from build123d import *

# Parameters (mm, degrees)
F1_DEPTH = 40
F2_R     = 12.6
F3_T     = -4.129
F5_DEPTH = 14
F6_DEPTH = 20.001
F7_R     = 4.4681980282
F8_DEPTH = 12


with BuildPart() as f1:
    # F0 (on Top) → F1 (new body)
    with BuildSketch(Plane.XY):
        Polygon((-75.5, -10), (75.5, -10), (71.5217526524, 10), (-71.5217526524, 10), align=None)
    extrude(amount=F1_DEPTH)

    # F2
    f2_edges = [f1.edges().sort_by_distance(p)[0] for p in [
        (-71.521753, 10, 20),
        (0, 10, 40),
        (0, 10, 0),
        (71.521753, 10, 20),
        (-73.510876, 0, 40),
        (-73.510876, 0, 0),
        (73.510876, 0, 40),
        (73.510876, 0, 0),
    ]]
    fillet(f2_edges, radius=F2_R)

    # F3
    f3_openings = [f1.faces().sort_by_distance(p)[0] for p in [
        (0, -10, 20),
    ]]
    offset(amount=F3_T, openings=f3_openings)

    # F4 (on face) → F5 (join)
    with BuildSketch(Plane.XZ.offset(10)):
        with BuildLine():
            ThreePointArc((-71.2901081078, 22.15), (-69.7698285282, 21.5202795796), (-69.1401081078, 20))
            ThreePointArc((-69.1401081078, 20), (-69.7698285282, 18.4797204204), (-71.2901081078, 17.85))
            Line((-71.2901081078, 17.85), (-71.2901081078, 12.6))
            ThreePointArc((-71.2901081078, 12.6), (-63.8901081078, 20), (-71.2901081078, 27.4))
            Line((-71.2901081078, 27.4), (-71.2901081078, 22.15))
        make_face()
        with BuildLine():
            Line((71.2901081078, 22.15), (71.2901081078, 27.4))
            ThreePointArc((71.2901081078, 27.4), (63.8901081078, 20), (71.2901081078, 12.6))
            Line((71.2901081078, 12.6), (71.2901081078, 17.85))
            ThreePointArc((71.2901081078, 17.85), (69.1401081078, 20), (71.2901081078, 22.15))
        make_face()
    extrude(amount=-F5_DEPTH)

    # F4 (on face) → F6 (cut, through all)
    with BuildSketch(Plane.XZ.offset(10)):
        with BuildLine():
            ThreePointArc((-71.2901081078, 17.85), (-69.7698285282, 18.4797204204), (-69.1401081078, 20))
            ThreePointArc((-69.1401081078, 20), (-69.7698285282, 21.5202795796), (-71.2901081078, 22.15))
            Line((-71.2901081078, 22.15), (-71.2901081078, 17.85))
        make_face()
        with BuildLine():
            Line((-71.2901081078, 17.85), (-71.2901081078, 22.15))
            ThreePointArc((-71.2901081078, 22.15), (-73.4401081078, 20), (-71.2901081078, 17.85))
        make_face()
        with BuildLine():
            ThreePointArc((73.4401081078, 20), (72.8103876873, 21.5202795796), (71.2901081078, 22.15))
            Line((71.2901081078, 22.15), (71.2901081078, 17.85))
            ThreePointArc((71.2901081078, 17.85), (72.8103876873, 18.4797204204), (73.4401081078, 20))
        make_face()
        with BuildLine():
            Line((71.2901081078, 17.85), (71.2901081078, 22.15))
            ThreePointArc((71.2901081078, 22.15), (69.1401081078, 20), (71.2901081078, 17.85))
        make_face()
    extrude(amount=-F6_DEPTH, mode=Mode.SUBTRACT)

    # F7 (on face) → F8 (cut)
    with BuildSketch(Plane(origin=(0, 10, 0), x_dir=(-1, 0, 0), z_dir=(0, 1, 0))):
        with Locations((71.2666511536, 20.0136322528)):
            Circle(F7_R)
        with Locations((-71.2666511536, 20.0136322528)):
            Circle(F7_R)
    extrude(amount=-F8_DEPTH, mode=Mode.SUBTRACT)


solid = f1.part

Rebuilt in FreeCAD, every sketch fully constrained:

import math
import FreeCAD as App
import Part
import Sketcher
Q = App.Units.Quantity


def edges_at(feature, points):
    """Names of the edges that pass closest to the given points."""
    edges = feature.Shape.Edges
    near = lambda p: min(range(len(edges)), key=lambda i: edges[i].distToShape(Part.Vertex(*p))[0])
    return sorted({f"Edge{near(p) + 1}" for p in points})


def faces_at(feature, points):
    """Names of the faces that lie closest to the given points."""
    faces = feature.Shape.Faces
    near = lambda p: min(range(len(faces)), key=lambda i: faces[i].distToShape(Part.Vertex(*p))[0])
    return sorted({f"Face{near(p) + 1}" for p in points})

doc = App.newDocument("Part")
params = doc.addObject("Spreadsheet::Sheet", "Params")
for row, (alias, value) in enumerate([
    ("sketch1_width", "151 mm"),
    ("pad1_length", "40 mm"),
    ("fillet_radius", "12.6 mm"),
    ("thickness_wall", "4.129 mm"),
    ("sketch2_radius", "7.4 mm"),
    ("sketch2_radius2", "2.15 mm"),
    ("pad2_length", "14 mm"),
    ("sketch3_radius", "2.15 mm"),
    ("pocket2_length", "12 mm"),
], start=1):
    params.set(f"A{row}", alias)
    params.set(f"B{row}", "=" + value)
    params.setAlias(f"B{row}", alias)

body = doc.addObject("PartDesign::Body", "Body")

sketch1 = body.newObject("Sketcher::SketchObject", "Sketch")
sketch1.AttachmentSupport = (doc.getObject("XY_Plane"), [""])
sketch1.MapMode = "FlatFace"
sketch1.addGeometry(Part.LineSegment(App.Vector(-76, -10, 0), App.Vector(76, -10, 0)), False)
sketch1.addGeometry(Part.LineSegment(App.Vector(76, -10, 0), App.Vector(72, 10, 0)), False)
sketch1.addGeometry(Part.LineSegment(App.Vector(72, 10, 0), App.Vector(-72, 10, 0)), False)
sketch1.addGeometry(Part.LineSegment(App.Vector(-72, 10, 0), App.Vector(-76, -10, 0)), False)
sketch1.addConstraint(Sketcher.Constraint("Coincident", 0, 2, 1, 1))
sketch1.addConstraint(Sketcher.Constraint("Coincident", 1, 2, 2, 1))
sketch1.addConstraint(Sketcher.Constraint("Coincident", 2, 2, 3, 1))
sketch1.addConstraint(Sketcher.Constraint("Coincident", 3, 2, 0, 1))
sketch1.addConstraint(Sketcher.Constraint("Horizontal", 0))
sketch1.addConstraint(Sketcher.Constraint("Horizontal", 2))
sketch1.addConstraint(Sketcher.Constraint("Equal", 1, 3))
sketch1.addConstraint(Sketcher.Constraint("DistanceX", 0, 1, 0, 2, 151.0))
sketch1.addConstraint(Sketcher.Constraint("DistanceY", 0, 2, -1, 1, 10.0))
sketch1.addConstraint(Sketcher.Constraint("DistanceY", -1, 1, 1, 2, 10.0))
sketch1.addConstraint(Sketcher.Constraint("DistanceX", -1, 1, 0, 2, 75.5))
sketch1.addConstraint(Sketcher.Constraint("Angle", 1, Q("101.25 deg")))
sketch1.setExpression("Constraints[7]", "Params.sketch1_width")
pad1 = body.newObject("PartDesign::Pad", "Pad")
pad1.Profile = sketch1
pad1.setExpression("Length", "Params.pad1_length")
doc.recompute()

fillet = body.newObject("PartDesign::Fillet", "Fillet")
fillet.Base = (pad1, edges_at(pad1, [
    (-71.522, 10, 20),
    (0, 10, 40),
    (0, 10, 0),
    (71.522, 10, 20),
    (-73.511, 0, 40),
    (-73.511, 0, 0),
    (73.511, 0, 40),
    (73.511, 0, 0),
]))
fillet.setExpression("Radius", "Params.fillet_radius")
doc.recompute()

thickness = body.newObject("PartDesign::Thickness", "Thickness")
thickness.Base = (fillet, faces_at(fillet, [(0, -10, 20)]))
thickness.setExpression("Value", "Params.thickness_wall")
thickness.Reversed = True
thickness.Join = "Arc"

sketch2 = body.newObject("Sketcher::SketchObject", "Sketch001")
sketch2.AttachmentSupport = (doc.getObject("XZ_Plane"), [""])
sketch2.MapMode = "FlatFace"
sketch2.AttachmentOffset = App.Placement(App.Vector(0, 0, 10), App.Rotation())
sketch2.addGeometry(Part.ArcOfCircle(Part.Circle(App.Vector(-71.3, 20, 0), App.Vector(0, 0, 1), 2.1), math.radians(0), math.radians(90)), False)
sketch2.addGeometry(Part.ArcOfCircle(Part.Circle(App.Vector(-71.3, 20, 0), App.Vector(0, 0, 1), 2.1), math.radians(-90), math.radians(0)), False)
sketch2.addGeometry(Part.LineSegment(App.Vector(-71.3, 17.9, 0), App.Vector(-71.3, 12.6, 0)), False)
sketch2.addGeometry(Part.ArcOfCircle(Part.Circle(App.Vector(-71.3, 20, 0), App.Vector(0, 0, 1), 7.4), math.radians(-90), math.radians(90)), False)
sketch2.addGeometry(Part.LineSegment(App.Vector(-71.3, 27.4, 0), App.Vector(-71.3, 22.1, 0)), False)
sketch2.addGeometry(Part.LineSegment(App.Vector(71.3, 22.1, 0), App.Vector(71.3, 27.4, 0)), False)
sketch2.addGeometry(Part.ArcOfCircle(Part.Circle(App.Vector(71.3, 20, 0), App.Vector(0, 0, 1), 7.4), math.radians(90), math.radians(270)), False)
sketch2.addGeometry(Part.LineSegment(App.Vector(71.3, 12.6, 0), App.Vector(71.3, 17.9, 0)), False)
sketch2.addGeometry(Part.ArcOfCircle(Part.Circle(App.Vector(71.3, 20, 0), App.Vector(0, 0, 1), 2.1), math.radians(90), math.radians(270)), False)
sketch2.addConstraint(Sketcher.Constraint("Tangent", 0, 1, 1, 2))
sketch2.addConstraint(Sketcher.Constraint("Coincident", 1, 1, 2, 1))
sketch2.addConstraint(Sketcher.Constraint("Coincident", 2, 2, 3, 1))
sketch2.addConstraint(Sketcher.Constraint("Coincident", 3, 2, 4, 1))
sketch2.addConstraint(Sketcher.Constraint("Coincident", 4, 2, 0, 2))
sketch2.addConstraint(Sketcher.Constraint("Coincident", 5, 2, 6, 1))
sketch2.addConstraint(Sketcher.Constraint("Coincident", 6, 2, 7, 1))
sketch2.addConstraint(Sketcher.Constraint("Coincident", 7, 2, 8, 2))
sketch2.addConstraint(Sketcher.Constraint("Coincident", 8, 1, 5, 1))
sketch2.addConstraint(Sketcher.Constraint("Vertical", 2))
sketch2.addConstraint(Sketcher.Constraint("Vertical", 4))
sketch2.addConstraint(Sketcher.Constraint("Vertical", 5))
sketch2.addConstraint(Sketcher.Constraint("Vertical", 7))
sketch2.addConstraint(Sketcher.Constraint("Coincident", 3, 3, 0, 3))
sketch2.addConstraint(Sketcher.Constraint("Coincident", 8, 3, 6, 3))
sketch2.addConstraint(Sketcher.Constraint("Equal", 0, 1))
sketch2.addConstraint(Sketcher.Constraint("Equal", 3, 6))
sketch2.addConstraint(Sketcher.Constraint("Equal", 1, 8))
sketch2.addConstraint(Sketcher.Constraint("Symmetric", 0, 3, 6, 3, -2))
sketch2.addConstraint(Sketcher.Constraint("Horizontal", 8, 3, 0, 1))
sketch2.addConstraint(Sketcher.Constraint("Vertical", 3, 3, 1, 1))
sketch2.addConstraint(Sketcher.Constraint("Vertical", 2, 2, 3, 2))
sketch2.addConstraint(Sketcher.Constraint("Vertical", 8, 3, 5, 2))
sketch2.addConstraint(Sketcher.Constraint("Vertical", 5, 2, 6, 2))
sketch2.addConstraint(Sketcher.Constraint("Radius", 3, 7.4))
sketch2.addConstraint(Sketcher.Constraint("Radius", 0, 2.15))
sketch2.addConstraint(Sketcher.Constraint("DistanceY", -1, 1, 0, 3, 20.0))
sketch2.addConstraint(Sketcher.Constraint("DistanceX", 0, 3, -1, 1, 71.290108))
sketch2.setExpression("Constraints[24]", "Params.sketch2_radius")
sketch2.setExpression("Constraints[25]", "Params.sketch2_radius2")
pad2 = body.newObject("PartDesign::Pad", "Pad001")
pad2.Profile = sketch2
pad2.setExpression("Length", "Params.pad2_length")
pad2.Reversed = True

sketch3 = body.newObject("Sketcher::SketchObject", "Sketch002")
sketch3.AttachmentSupport = (doc.getObject("XZ_Plane"), [""])
sketch3.MapMode = "FlatFace"
sketch3.AttachmentOffset = App.Placement(App.Vector(0, 0, 10), App.Rotation())
sketch3.addGeometry(Part.ArcOfCircle(Part.Circle(App.Vector(-71.3, 20, 0), App.Vector(0, 0, 1), 2.1), math.radians(-90), math.radians(0)), False)
sketch3.addGeometry(Part.ArcOfCircle(Part.Circle(App.Vector(-71.3, 20, 0), App.Vector(0, 0, 1), 2.1), math.radians(0), math.radians(90)), False)
sketch3.addGeometry(Part.ArcOfCircle(Part.Circle(App.Vector(-71.3, 20, 0), App.Vector(0, 0, 1), 2.1), math.radians(90), math.radians(270)), False)
sketch3.addGeometry(Part.ArcOfCircle(Part.Circle(App.Vector(71.3, 20, 0), App.Vector(0, 0, 1), 2.1), math.radians(0), math.radians(90)), False)
sketch3.addGeometry(Part.ArcOfCircle(Part.Circle(App.Vector(71.3, 20, 0), App.Vector(0, 0, 1), 2.1), math.radians(90), math.radians(270)), False)
sketch3.addGeometry(Part.ArcOfCircle(Part.Circle(App.Vector(71.3, 20, 0), App.Vector(0, 0, 1), 2.1), math.radians(-90), math.radians(0)), False)
sketch3.addConstraint(Sketcher.Constraint("Tangent", 0, 2, 1, 1))
sketch3.addConstraint(Sketcher.Constraint("Tangent", 1, 2, 2, 1))
sketch3.addConstraint(Sketcher.Constraint("Tangent", 2, 2, 0, 1))
sketch3.addConstraint(Sketcher.Constraint("Tangent", 3, 2, 4, 1))
sketch3.addConstraint(Sketcher.Constraint("Tangent", 4, 2, 5, 1))
sketch3.addConstraint(Sketcher.Constraint("Tangent", 5, 2, 3, 1))
sketch3.addConstraint(Sketcher.Constraint("Equal", 2, 3))
sketch3.addConstraint(Sketcher.Constraint("Symmetric", 0, 3, 3, 3, -2))
sketch3.addConstraint(Sketcher.Constraint("Horizontal", 5, 3, 0, 2))
sketch3.addConstraint(Sketcher.Constraint("Horizontal", 0, 2, 5, 2))
sketch3.addConstraint(Sketcher.Constraint("Vertical", 2, 3, 1, 2))
sketch3.addConstraint(Sketcher.Constraint("Vertical", 1, 2, 2, 2))
sketch3.addConstraint(Sketcher.Constraint("Vertical", 5, 3, 3, 2))
sketch3.addConstraint(Sketcher.Constraint("Vertical", 3, 2, 4, 2))
sketch3.addConstraint(Sketcher.Constraint("Radius", 0, 2.15))
sketch3.addConstraint(Sketcher.Constraint("DistanceY", -1, 1, 0, 3, 20.0))
sketch3.addConstraint(Sketcher.Constraint("DistanceX", 0, 3, -1, 1, 71.290108))
sketch3.setExpression("Constraints[14]", "Params.sketch3_radius")
pocket1 = body.newObject("PartDesign::Pocket", "Pocket")
pocket1.Profile = sketch3
pocket1.Type = "ThroughAll"

sketch4 = body.newObject("Sketcher::SketchObject", "Sketch003")
sketch4.AttachmentSupport = (doc.getObject("XZ_Plane"), [""])
sketch4.MapMode = "FlatFace"
sketch4.AttachmentOffset = App.Placement(App.Vector(0, 0, -10), App.Rotation())
sketch4.addGeometry(Part.Circle(App.Vector(-71.3, 20, 0), App.Vector(0, 0, 1), 4.5), False)
sketch4.addGeometry(Part.Circle(App.Vector(71.3, 20, 0), App.Vector(0, 0, 1), 4.5), False)
sketch4.addConstraint(Sketcher.Constraint("Equal", 0, 1))
sketch4.addConstraint(Sketcher.Constraint("Symmetric", 0, 3, 1, 3, -2))
sketch4.addConstraint(Sketcher.Constraint("Diameter", 0, 8.936396))
sketch4.addConstraint(Sketcher.Constraint("DistanceX", 0, 3, -1, 1, 71.266651))
sketch4.addConstraint(Sketcher.Constraint("DistanceY", -1, 1, 0, 3, 20.013632))
pocket2 = body.newObject("PartDesign::Pocket", "Pocket001")
pocket2.Profile = sketch4
pocket2.setExpression("Length", "Params.pocket2_length")
pocket2.Reversed = True

doc.recompute()
